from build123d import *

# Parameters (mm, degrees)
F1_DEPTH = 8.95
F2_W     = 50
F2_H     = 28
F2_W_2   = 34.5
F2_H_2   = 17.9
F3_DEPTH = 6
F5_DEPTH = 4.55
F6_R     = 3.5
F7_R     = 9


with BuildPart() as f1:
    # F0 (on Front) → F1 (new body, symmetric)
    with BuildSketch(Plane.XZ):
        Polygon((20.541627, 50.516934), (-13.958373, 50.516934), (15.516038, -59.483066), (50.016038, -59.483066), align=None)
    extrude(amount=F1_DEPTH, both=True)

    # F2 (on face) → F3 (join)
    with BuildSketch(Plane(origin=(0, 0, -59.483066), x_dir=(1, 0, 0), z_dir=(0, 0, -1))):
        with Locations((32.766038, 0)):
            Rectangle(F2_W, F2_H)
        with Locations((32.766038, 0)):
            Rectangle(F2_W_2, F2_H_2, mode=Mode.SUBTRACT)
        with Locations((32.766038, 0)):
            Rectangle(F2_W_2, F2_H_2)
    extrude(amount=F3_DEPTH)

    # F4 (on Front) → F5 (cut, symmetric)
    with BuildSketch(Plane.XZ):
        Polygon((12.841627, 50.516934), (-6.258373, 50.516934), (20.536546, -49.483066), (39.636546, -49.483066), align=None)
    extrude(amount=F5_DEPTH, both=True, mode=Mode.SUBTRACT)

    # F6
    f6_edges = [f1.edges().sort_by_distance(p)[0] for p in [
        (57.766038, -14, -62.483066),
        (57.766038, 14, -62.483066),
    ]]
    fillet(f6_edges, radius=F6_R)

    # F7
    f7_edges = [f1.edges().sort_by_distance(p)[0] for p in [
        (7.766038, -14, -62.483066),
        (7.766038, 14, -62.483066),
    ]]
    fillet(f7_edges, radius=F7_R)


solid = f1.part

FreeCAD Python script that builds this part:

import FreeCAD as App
import Part
import Sketcher
from FreeCAD import Vector
Q = App.Units.Quantity


def edges_at(feature, points):
    """Names of the edges that pass closest to the given points."""
    edges = feature.Shape.Edges
    near = lambda p: min(range(len(edges)), key=lambda i: edges[i].distToShape(Part.Vertex(*p))[0])
    return sorted({f"Edge{near(p) + 1}" for p in points})

doc = App.newDocument("Part")
body = doc.addObject("PartDesign::Body", "Body")

sketch1 = body.newObject("Sketcher::SketchObject", "Sketch")
sketch1.AttachmentSupport = (doc.getObject("XZ_Plane"), [""])
sketch1.MapMode = "FlatFace"
sketch1.addGeometry([
    Part.LineSegment(Vector(20.541627, 50.516934, 0), Vector(-13.958373, 50.516934, 0)),
    Part.LineSegment(Vector(-13.958373, 50.516934, 0), Vector(15.516038, -59.483066, 0)),
    Part.LineSegment(Vector(15.516038, -59.483066, 0), Vector(50.016038, -59.483066, 0)),
    Part.LineSegment(Vector(50.016038, -59.483066, 0), Vector(20.541627, 50.516934, 0)),
], False)
sketch1.addConstraint([
    Sketcher.Constraint("Coincident", 0, 2, 1, 1),
    Sketcher.Constraint("Coincident", 1, 2, 2, 1),
    Sketcher.Constraint("Coincident", 2, 2, 3, 1),
    Sketcher.Constraint("Coincident", 3, 2, 0, 1),
    Sketcher.Constraint("Horizontal", 0),
    Sketcher.Constraint("Horizontal", 2),
    Sketcher.Constraint("Parallel", 1, 3),
    Sketcher.Constraint("Angle", 1, Q("-75 deg")),
    Sketcher.Constraint("DistanceX", 0, 2, 0, 1, 34.5),
    Sketcher.Constraint("DistanceY", 1, 2, 0, 2, 110.0),
    Sketcher.Constraint("DistanceX", -1, 1, 2, 2, 50.016038),
    Sketcher.Constraint("DistanceY", -1, 1, 0, 2, 50.516934),
])
pad1 = body.newObject("PartDesign::Pad", "Pad")
pad1.Profile = sketch1
pad1.Length = 17.9
pad1.Midplane = True

sketch2 = body.newObject("Sketcher::SketchObject", "Sketch001")
sketch2.AttachmentSupport = (doc.getObject("XY_Plane"), [""])
sketch2.MapMode = "FlatFace"
sketch2.AttachmentOffset = App.Placement(Vector(0, 0, -59.483066), App.Rotation())
sketch2.addGeometry([
    Part.LineSegment(Vector(7.766038, -14, 0), Vector(7.766038, 14, 0)),
    Part.LineSegment(Vector(7.766038, 14, 0), Vector(57.766038, 14, 0)),
    Part.LineSegment(Vector(57.766038, 14, 0), Vector(57.766038, -14, 0)),
    Part.LineSegment(Vector(57.766038, -14, 0), Vector(7.766038, -14, 0)),
], False)
sketch2.addConstraint([
    Sketcher.Constraint("Coincident", 0, 2, 1, 1),
    Sketcher.Constraint("Coincident", 1, 2, 2, 1),
    Sketcher.Constraint("Coincident", 2, 2, 3, 1),
    Sketcher.Constraint("Coincident", 3, 2, 0, 1),
    Sketcher.Constraint("Vertical", 0),
    Sketcher.Constraint("Horizontal", 1),
    Sketcher.Constraint("Vertical", 2),
    Sketcher.Constraint("Horizontal", 3),
    Sketcher.Constraint("DistanceX", 1, 1, 1, 2, 50.0),
    Sketcher.Constraint("DistanceY", 0, 1, 0, 2, 28.0),
    Sketcher.Constraint("DistanceY", -1, 1, 0, 2, 14.0),
    Sketcher.Constraint("DistanceX", -1, 1, 1, 2, 57.766038),
])
pad2 = body.newObject("PartDesign::Pad", "Pad001")
pad2.Profile = sketch2
pad2.Length = 6
pad2.Reversed = True

sketch3 = body.newObject("Sketcher::SketchObject", "Sketch002")
sketch3.AttachmentSupport = (doc.getObject("XZ_Plane"), [""])
sketch3.MapMode = "FlatFace"
sketch3.addGeometry([
    Part.LineSegment(Vector(12.841627, 50.516934, 0), Vector(-6.258373, 50.516934, 0)),
    Part.LineSegment(Vector(-6.258373, 50.516934, 0), Vector(20.536546, -49.483066, 0)),
    Part.LineSegment(Vector(20.536546, -49.483066, 0), Vector(39.636546, -49.483066, 0)),
    Part.LineSegment(Vector(39.636546, -49.483066, 0), Vector(12.841627, 50.516934, 0)),
], False)
sketch3.addConstraint([
    Sketcher.Constraint("Coincident", 0, 2, 1, 1),
    Sketcher.Constraint("Coincident", 1, 2, 2, 1),
    Sketcher.Constraint("Coincident", 2, 2, 3, 1),
    Sketcher.Constraint("Coincident", 3, 2, 0, 1),
    Sketcher.Constraint("Horizontal", 0),
    Sketcher.Constraint("Horizontal", 2),
    Sketcher.Constraint("Parallel", 1, 3),
    Sketcher.Constraint("Angle", 1, Q("-75 deg")),
    Sketcher.Constraint("DistanceX", 0, 2, 0, 1, 19.1),
    Sketcher.Constraint("DistanceY", 1, 2, 0, 2, 100.0),
    Sketcher.Constraint("DistanceX", 0, 2, -1, 1, 6.258373),
    Sketcher.Constraint("DistanceY", -1, 1, 0, 2, 50.516934),
])
pocket1 = body.newObject("PartDesign::Pocket", "Pocket")
pocket1.Profile = sketch3
pocket1.Length = 9.1
pocket1.Midplane = True
doc.recompute()

fillet = body.newObject("PartDesign::Fillet", "Fillet")
fillet.Base = (pocket1, edges_at(pocket1, [(57.766, -14, -62.483), (57.766, 14, -62.483)]))
fillet.Radius = 3.5
doc.recompute()

fillet2 = body.newObject("PartDesign::Fillet", "Fillet001")
fillet2.Base = (fillet, edges_at(fillet, [(7.766, -14, -62.483), (7.766, 14, -62.483)]))
fillet2.Radius = 9

doc.recompute()
